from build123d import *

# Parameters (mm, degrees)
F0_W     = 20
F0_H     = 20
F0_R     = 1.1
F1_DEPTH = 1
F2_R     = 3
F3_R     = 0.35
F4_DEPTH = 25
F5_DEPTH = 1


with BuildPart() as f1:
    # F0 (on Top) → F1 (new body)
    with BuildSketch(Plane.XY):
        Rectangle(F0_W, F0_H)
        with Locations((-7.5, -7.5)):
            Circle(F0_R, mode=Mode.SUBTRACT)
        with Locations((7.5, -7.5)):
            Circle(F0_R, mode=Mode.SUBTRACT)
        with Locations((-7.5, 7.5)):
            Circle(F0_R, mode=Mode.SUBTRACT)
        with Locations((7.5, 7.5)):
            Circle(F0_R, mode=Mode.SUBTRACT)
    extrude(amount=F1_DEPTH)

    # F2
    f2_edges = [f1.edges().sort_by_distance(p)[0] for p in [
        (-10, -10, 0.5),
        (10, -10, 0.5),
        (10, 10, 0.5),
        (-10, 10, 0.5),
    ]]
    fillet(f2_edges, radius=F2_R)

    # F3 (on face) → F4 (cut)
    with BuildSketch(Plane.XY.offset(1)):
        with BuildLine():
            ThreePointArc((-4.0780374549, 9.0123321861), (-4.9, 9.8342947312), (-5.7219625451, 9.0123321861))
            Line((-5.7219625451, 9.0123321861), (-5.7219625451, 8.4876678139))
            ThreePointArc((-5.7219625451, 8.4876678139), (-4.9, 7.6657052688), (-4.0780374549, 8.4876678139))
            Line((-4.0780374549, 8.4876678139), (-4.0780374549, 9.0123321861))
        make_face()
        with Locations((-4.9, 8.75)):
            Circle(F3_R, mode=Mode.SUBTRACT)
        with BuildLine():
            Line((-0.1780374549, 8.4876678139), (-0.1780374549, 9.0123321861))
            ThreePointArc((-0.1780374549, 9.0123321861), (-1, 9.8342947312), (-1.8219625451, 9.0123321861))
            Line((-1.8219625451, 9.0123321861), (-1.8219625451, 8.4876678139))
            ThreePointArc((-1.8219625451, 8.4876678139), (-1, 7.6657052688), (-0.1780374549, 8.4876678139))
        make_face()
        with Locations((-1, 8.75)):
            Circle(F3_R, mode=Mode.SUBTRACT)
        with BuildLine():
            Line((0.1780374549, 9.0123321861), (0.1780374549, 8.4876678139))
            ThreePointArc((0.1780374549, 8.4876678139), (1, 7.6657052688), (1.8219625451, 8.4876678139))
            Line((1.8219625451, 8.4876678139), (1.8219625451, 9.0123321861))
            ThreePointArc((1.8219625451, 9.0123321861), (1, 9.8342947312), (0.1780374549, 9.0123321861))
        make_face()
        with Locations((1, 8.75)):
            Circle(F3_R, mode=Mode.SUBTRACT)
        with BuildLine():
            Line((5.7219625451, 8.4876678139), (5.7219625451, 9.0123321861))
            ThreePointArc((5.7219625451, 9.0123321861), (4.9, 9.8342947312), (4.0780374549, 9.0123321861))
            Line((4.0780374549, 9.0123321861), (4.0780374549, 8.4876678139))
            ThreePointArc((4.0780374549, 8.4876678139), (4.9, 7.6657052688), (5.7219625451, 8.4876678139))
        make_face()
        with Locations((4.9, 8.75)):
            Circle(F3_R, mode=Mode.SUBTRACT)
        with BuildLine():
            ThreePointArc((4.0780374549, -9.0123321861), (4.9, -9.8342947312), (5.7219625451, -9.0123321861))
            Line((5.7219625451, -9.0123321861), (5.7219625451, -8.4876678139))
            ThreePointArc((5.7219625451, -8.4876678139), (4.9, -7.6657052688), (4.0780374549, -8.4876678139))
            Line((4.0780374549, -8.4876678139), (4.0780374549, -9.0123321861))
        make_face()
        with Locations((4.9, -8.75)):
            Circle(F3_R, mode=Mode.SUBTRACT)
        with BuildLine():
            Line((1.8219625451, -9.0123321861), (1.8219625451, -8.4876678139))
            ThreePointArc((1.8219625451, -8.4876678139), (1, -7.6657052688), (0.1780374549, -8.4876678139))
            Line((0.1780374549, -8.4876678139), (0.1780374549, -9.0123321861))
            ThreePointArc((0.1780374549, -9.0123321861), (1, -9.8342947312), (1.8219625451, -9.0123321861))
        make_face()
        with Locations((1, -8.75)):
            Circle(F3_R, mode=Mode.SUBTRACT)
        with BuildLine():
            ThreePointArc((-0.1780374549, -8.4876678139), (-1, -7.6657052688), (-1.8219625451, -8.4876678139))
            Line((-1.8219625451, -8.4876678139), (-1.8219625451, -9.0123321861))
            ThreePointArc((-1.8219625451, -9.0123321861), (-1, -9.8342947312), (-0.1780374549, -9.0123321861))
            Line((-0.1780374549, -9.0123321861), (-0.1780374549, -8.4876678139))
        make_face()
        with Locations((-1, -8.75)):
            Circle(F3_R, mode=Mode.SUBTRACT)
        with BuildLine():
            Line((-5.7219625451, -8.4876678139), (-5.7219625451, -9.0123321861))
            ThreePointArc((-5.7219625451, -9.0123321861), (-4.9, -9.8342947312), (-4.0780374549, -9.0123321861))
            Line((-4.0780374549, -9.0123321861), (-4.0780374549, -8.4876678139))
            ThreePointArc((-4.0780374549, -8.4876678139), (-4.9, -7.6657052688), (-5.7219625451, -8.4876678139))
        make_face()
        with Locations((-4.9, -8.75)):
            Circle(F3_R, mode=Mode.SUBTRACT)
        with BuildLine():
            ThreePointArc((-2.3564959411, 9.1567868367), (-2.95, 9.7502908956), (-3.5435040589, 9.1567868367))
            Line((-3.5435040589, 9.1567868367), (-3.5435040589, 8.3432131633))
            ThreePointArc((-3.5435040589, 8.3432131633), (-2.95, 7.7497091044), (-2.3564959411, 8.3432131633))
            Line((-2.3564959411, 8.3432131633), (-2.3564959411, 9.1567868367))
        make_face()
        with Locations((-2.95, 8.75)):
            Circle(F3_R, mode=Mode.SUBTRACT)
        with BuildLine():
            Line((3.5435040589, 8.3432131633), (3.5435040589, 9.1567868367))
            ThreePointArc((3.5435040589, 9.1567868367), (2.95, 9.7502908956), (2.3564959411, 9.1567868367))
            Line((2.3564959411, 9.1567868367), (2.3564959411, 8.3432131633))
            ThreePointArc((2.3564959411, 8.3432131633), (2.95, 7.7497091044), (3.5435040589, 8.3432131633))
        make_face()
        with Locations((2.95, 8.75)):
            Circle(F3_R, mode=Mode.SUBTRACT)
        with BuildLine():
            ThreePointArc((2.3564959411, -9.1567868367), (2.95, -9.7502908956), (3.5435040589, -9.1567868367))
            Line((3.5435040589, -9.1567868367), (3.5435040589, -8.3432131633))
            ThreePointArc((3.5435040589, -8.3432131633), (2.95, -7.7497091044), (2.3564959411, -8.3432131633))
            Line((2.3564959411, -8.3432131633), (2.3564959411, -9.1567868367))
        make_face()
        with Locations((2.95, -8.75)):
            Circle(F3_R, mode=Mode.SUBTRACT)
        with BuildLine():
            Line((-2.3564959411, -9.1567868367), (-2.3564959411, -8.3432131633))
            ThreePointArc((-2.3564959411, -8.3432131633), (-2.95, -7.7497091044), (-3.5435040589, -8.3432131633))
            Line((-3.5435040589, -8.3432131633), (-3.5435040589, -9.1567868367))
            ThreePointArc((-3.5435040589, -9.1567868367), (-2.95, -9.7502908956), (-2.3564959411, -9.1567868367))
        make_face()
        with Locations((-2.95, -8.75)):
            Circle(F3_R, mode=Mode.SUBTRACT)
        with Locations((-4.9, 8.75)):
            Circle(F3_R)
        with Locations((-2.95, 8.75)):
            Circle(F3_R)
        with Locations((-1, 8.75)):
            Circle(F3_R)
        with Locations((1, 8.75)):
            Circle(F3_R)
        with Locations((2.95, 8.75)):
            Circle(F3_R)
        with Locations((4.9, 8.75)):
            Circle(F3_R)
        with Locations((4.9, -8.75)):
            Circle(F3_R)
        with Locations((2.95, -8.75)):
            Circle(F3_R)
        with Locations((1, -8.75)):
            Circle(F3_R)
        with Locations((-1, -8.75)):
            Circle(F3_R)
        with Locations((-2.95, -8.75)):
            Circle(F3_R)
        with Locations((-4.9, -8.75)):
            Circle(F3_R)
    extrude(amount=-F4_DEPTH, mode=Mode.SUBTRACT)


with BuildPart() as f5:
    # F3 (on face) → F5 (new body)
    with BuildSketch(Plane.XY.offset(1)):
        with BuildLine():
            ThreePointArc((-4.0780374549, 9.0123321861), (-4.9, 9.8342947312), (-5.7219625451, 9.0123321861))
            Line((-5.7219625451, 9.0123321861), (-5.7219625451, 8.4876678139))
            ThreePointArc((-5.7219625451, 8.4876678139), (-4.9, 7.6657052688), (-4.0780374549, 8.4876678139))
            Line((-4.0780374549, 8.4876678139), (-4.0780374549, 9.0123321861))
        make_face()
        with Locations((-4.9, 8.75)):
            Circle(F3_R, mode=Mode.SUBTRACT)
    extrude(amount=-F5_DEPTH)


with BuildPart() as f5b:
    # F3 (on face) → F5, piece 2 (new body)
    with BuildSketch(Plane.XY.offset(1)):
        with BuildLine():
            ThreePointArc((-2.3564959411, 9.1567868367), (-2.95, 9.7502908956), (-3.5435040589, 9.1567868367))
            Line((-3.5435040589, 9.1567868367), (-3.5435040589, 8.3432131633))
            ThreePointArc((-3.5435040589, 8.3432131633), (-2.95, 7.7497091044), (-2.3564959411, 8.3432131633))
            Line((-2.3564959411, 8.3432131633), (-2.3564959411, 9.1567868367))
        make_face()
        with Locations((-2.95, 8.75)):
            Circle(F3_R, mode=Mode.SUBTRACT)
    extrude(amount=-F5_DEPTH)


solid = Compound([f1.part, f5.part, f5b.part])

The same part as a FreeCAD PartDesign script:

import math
import FreeCAD as App
import Part
import Sketcher
Q = App.Units.Quantity


def edges_at(feature, points):
    """Names of the edges that pass closest to the given points."""
    edges = feature.Shape.Edges
    near = lambda p: min(range(len(edges)), key=lambda i: edges[i].distToShape(Part.Vertex(*p))[0])
    return sorted({f"Edge{near(p) + 1}" for p in points})

doc = App.newDocument("Part")
body = doc.addObject("PartDesign::Body", "Body")

# Sketch on XY plane
sketch1 = body.newObject("Sketcher::SketchObject", "Sketch")
sketch1.AttachmentSupport = (doc.getObject("XY_Plane"), [""])
sketch1.MapMode = "FlatFace"
sketch1.addGeometry([
    Part.LineSegment(App.Vector(-10, 10, 0), App.Vector(-10, -10, 0)),  # 0
    Part.LineSegment(App.Vector(-10, -10, 0), App.Vector(10, -10, 0)),  # 1
    Part.LineSegment(App.Vector(10, -10, 0), App.Vector(10, 10, 0)),  # 2
    Part.LineSegment(App.Vector(10, 10, 0), App.Vector(-10, 10, 0)),  # 3
    Part.Circle(App.Vector(-7.5, -7.5, 0), App.Vector(0, 0, 1), 1.1),  # 4
    Part.Circle(App.Vector(7.5, -7.5, 0), App.Vector(0, 0, 1), 1.1),  # 5
    Part.Circle(App.Vector(-7.5, 7.5, 0), App.Vector(0, 0, 1), 1.1),  # 6
    Part.Circle(App.Vector(7.5, 7.5, 0), App.Vector(0, 0, 1), 1.1),  # 7
], False)
sketch1.addConstraint([
    Sketcher.Constraint("Coincident", 0, 2, 1, 1),
    Sketcher.Constraint("Coincident", 1, 2, 2, 1),
    Sketcher.Constraint("Coincident", 2, 2, 3, 1),
    Sketcher.Constraint("Coincident", 3, 2, 0, 1),
    Sketcher.Constraint("Vertical", 0),
    Sketcher.Constraint("Horizontal", 1),
    Sketcher.Constraint("Vertical", 2),
    Sketcher.Constraint("Horizontal", 3),
    Sketcher.Constraint("Equal", 4, 5),
    Sketcher.Constraint("Equal", 5, 6),
    Sketcher.Constraint("Equal", 6, 7),
    Sketcher.Constraint("Symmetric", 5, 3, 6, 3, -1, 1),
    Sketcher.Constraint("Symmetric", 4, 3, 7, 3, -1, 1),
    Sketcher.Constraint("Symmetric", 0, 2, 2, 2, -1, 1),
    Sketcher.Constraint("Symmetric", 4, 3, 5, 3, -2),
    Sketcher.Constraint("Equal", 3, 0),
    Sketcher.Constraint("Diameter", 4, Q("2.2 mm")),
    Sketcher.Constraint("DistanceX", 1, 1, 1, 2, Q("20 mm")),
    Sketcher.Constraint("DistanceX", 4, 3, 5, 3, Q("15 mm")),
    Sketcher.Constraint("DistanceY", 4, 3, 6, 3, Q("15 mm")),
])
pad1 = body.newObject("PartDesign::Pad", "Pad")
pad1.Profile = sketch1
pad1.Length = 1
doc.recompute()

fillet = body.newObject("PartDesign::Fillet", "Fillet")
fillet.Base = (pad1, edges_at(pad1, [
    (-10, -10, 0.5),
    (10, -10, 0.5),
    (10, 10, 0.5),
    (-10, 10, 0.5),
]))
fillet.Radius = 3

# Sketch on XY plane
sketch2 = body.newObject("Sketcher::SketchObject", "Sketch001")
sketch2.AttachmentSupport = (doc.getObject("XY_Plane"), [""])
sketch2.MapMode = "FlatFace"
sketch2.AttachmentOffset = App.Placement(App.Vector(0, 0, 1), App.Rotation())
sketch2.addGeometry([
    Part.ArcOfCircle(Part.Circle(App.Vector(-4.9, 9, 0), App.Vector(0, 0, 1), 0.8), math.radians(0), math.radians(180)),  # 0
    Part.LineSegment(App.Vector(-5.7, 9, 0), App.Vector(-5.7, 8.5, 0)),  # 1
    Part.ArcOfCircle(Part.Circle(App.Vector(-4.9, 8.5, 0), App.Vector(0, 0, 1), 0.8), math.radians(180), math.radians(360)),  # 2
    Part.LineSegment(App.Vector(-4.1, 8.5, 0), App.Vector(-4.1, 9, 0)),  # 3
    Part.LineSegment(App.Vector(-0.2, 8.5, 0), App.Vector(-0.2, 9, 0)),  # 4
    Part.ArcOfCircle(Part.Circle(App.Vector(-1, 9, 0), App.Vector(0, 0, 1), 0.8), math.radians(0), math.radians(180)),  # 5
    Part.LineSegment(App.Vector(-1.8, 9, 0), App.Vector(-1.8, 8.5, 0)),  # 6
    Part.ArcOfCircle(Part.Circle(App.Vector(-1, 8.5, 0), App.Vector(0, 0, 1), 0.8), math.radians(180), math.radians(360)),  # 7
    Part.LineSegment(App.Vector(0.2, 9, 0), App.Vector(0.2, 8.5, 0)),  # 8
    Part.ArcOfCircle(Part.Circle(App.Vector(1, 8.5, 0), App.Vector(0, 0, 1), 0.8), math.radians(180), math.radians(360)),  # 9
    Part.LineSegment(App.Vector(1.8, 8.5, 0), App.Vector(1.8, 9, 0)),  # 10
    Part.ArcOfCircle(Part.Circle(App.Vector(1, 9, 0), App.Vector(0, 0, 1), 0.8), math.radians(0), math.radians(180)),  # 11
    Part.LineSegment(App.Vector(5.7, 8.5, 0), App.Vector(5.7, 9, 0)),  # 12
    Part.ArcOfCircle(Part.Circle(App.Vector(4.9, 9, 0), App.Vector(0, 0, 1), 0.8), math.radians(0), math.radians(180)),  # 13
    Part.LineSegment(App.Vector(4.1, 9, 0), App.Vector(4.1, 8.5, 0)),  # 14
    Part.ArcOfCircle(Part.Circle(App.Vector(4.9, 8.5, 0), App.Vector(0, 0, 1), 0.8), math.radians(180), math.radians(360)),  # 15
    Part.ArcOfCircle(Part.Circle(App.Vector(4.9, -9, 0), App.Vector(0, 0, 1), 0.8), math.radians(180), math.radians(360)),  # 16
    Part.LineSegment(App.Vector(5.7, -9, 0), App.Vector(5.7, -8.5, 0)),  # 17
    Part.ArcOfCircle(Part.Circle(App.Vector(4.9, -8.5, 0), App.Vector(0, 0, 1), 0.8), math.radians(0), math.radians(180)),  # 18
    Part.LineSegment(App.Vector(4.1, -8.5, 0), App.Vector(4.1, -9, 0)),  # 19
    Part.LineSegment(App.Vector(1.8, -9, 0), App.Vector(1.8, -8.5, 0)),  # 20
    Part.ArcOfCircle(Part.Circle(App.Vector(1, -8.5, 0), App.Vector(0, 0, 1), 0.8), math.radians(0), math.radians(180)),  # 21
    Part.LineSegment(App.Vector(0.2, -8.5, 0), App.Vector(0.2, -9, 0)),  # 22
    Part.ArcOfCircle(Part.Circle(App.Vector(1, -9, 0), App.Vector(0, 0, 1), 0.8), math.radians(180), math.radians(360)),  # 23
    Part.ArcOfCircle(Part.Circle(App.Vector(-1, -8.5, 0), App.Vector(0, 0, 1), 0.8), math.radians(0), math.radians(180)),  # 24
    Part.LineSegment(App.Vector(-1.8, -8.5, 0), App.Vector(-1.8, -9, 0)),  # 25
    Part.ArcOfCircle(Part.Circle(App.Vector(-1, -9, 0), App.Vector(0, 0, 1), 0.8), math.radians(180), math.radians(360)),  # 26
    Part.LineSegment(App.Vector(-0.2, -9, 0), App.Vector(-0.2, -8.5, 0)),  # 27
    Part.LineSegment(App.Vector(-5.7, -8.5, 0), App.Vector(-5.7, -9, 0)),  # 28
    Part.ArcOfCircle(Part.Circle(App.Vector(-4.9, -9, 0), App.Vector(0, 0, 1), 0.8), math.radians(180), math.radians(360)),  # 29
    Part.LineSegment(App.Vector(-4.1, -9, 0), App.Vector(-4.1, -8.5, 0)),  # 30
    Part.ArcOfCircle(Part.Circle(App.Vector(-4.9, -8.5, 0), App.Vector(0, 0, 1), 0.8), math.radians(0), math.radians(180)),  # 31
    Part.ArcOfCircle(Part.Circle(App.Vector(-3, 9.2, 0), App.Vector(0, 0, 1), 0.6), math.radians(0), math.radians(180)),  # 32
    Part.LineSegment(App.Vector(-3.5, 9.2, 0), App.Vector(-3.5, 8.3, 0)),  # 33
    Part.ArcOfCircle(Part.Circle(App.Vector(-3, 8.3, 0), App.Vector(0, 0, 1), 0.6), math.radians(180), math.radians(360)),  # 34
    Part.LineSegment(App.Vector(-2.4, 8.3, 0), App.Vector(-2.4, 9.2, 0)),  # 35
    Part.LineSegment(App.Vector(3.5, 8.3, 0), App.Vector(3.5, 9.2, 0)),  # 36
    Part.ArcOfCircle(Part.Circle(App.Vector(3, 9.2, 0), App.Vector(0, 0, 1), 0.6), math.radians(0), math.radians(180)),  # 37
    Part.LineSegment(App.Vector(2.4, 9.2, 0), App.Vector(2.4, 8.3, 0)),  # 38
    Part.ArcOfCircle(Part.Circle(App.Vector(3, 8.3, 0), App.Vector(0, 0, 1), 0.6), math.radians(180), math.radians(360)),  # 39
    Part.ArcOfCircle(Part.Circle(App.Vector(3, -9.2, 0), App.Vector(0, 0, 1), 0.6), math.radians(180), math.radians(360)),  # 40
    Part.LineSegment(App.Vector(3.5, -9.2, 0), App.Vector(3.5, -8.3, 0)),  # 41
    Part.ArcOfCircle(Part.Circle(App.Vector(3, -8.3, 0), App.Vector(0, 0, 1), 0.6), math.radians(0), math.radians(180)),  # 42
    Part.LineSegment(App.Vector(2.4, -8.3, 0), App.Vector(2.4, -9.2, 0)),  # 43
    Part.LineSegment(App.Vector(-2.4, -9.2, 0), App.Vector(-2.4, -8.3, 0)),  # 44
    Part.ArcOfCircle(Part.Circle(App.Vector(-3, -8.3, 0), App.Vector(0, 0, 1), 0.6), math.radians(0), math.radians(180)),  # 45
    Part.LineSegment(App.Vector(-3.5, -8.3, 0), App.Vector(-3.5, -9.2, 0)),  # 46
    Part.ArcOfCircle(Part.Circle(App.Vector(-3, -9.2, 0), App.Vector(0, 0, 1), 0.6), math.radians(180), math.radians(360)),  # 47
], False)
sketch2.addConstraint([
    Sketcher.Constraint("Tangent", 0, 2, 1, 1),
    Sketcher.Constraint("Tangent", 1, 2, 2, 1),
    Sketcher.Constraint("Tangent", 2, 2, 3, 1),
    Sketcher.Constraint("Tangent", 3, 2, 0, 1),
    Sketcher.Constraint("Tangent", 4, 2, 5, 1),
    Sketcher.Constraint("Tangent", 5, 2, 6, 1),
    Sketcher.Constraint("Tangent", 6, 2, 7, 1),
    Sketcher.Constraint("Tangent", 7, 2, 4, 1),
    Sketcher.Constraint("Tangent", 8, 2, 9, 1),
    Sketcher.Constraint("Tangent", 9, 2, 10, 1),
    Sketcher.Constraint("Tangent", 10, 2, 11, 1),
    Sketcher.Constraint("Tangent", 11, 2, 8, 1),
    Sketcher.Constraint("Tangent", 12, 2, 13, 1),
    Sketcher.Constraint("Tangent", 13, 2, 14, 1),
    Sketcher.Constraint("Tangent", 14, 2, 15, 1),
    Sketcher.Constraint("Tangent", 15, 2, 12, 1),
    Sketcher.Constraint("Tangent", 16, 2, 17, 1),
    Sketcher.Constraint("Tangent", 17, 2, 18, 1),
    Sketcher.Constraint("Tangent", 18, 2, 19, 1),
    Sketcher.Constraint("Tangent", 19, 2, 16, 1),
    Sketcher.Constraint("Tangent", 20, 2, 21, 1),
    Sketcher.Constraint("Tangent", 21, 2, 22, 1),
    Sketcher.Constraint("Tangent", 22, 2, 23, 1),
    Sketcher.Constraint("Tangent", 23, 2, 20, 1),
    Sketcher.Constraint("Tangent", 24, 2, 25, 1),
    Sketcher.Constraint("Tangent", 25, 2, 26, 1),
    Sketcher.Constraint("Tangent", 26, 2, 27, 1),
    Sketcher.Constraint("Tangent", 27, 2, 24, 1),
    Sketcher.Constraint("Tangent", 28, 2, 29, 1),
    Sketcher.Constraint("Tangent", 29, 2, 30, 1),
    Sketcher.Constraint("Tangent", 30, 2, 31, 1),
    Sketcher.Constraint("Tangent", 31, 2, 28, 1),
    Sketcher.Constraint("Tangent", 32, 2, 33, 1),
    Sketcher.Constraint("Tangent", 33, 2, 34, 1),
    Sketcher.Constraint("Tangent", 34, 2, 35, 1),
    Sketcher.Constraint("Tangent", 35, 2, 32, 1),
    Sketcher.Constraint("Tangent", 36, 2, 37, 1),
    Sketcher.Constraint("Tangent", 37, 2, 38, 1),
    Sketcher.Constraint("Tangent", 38, 2, 39, 1),
    Sketcher.Constraint("Tangent", 39, 2, 36, 1),
    Sketcher.Constraint("Tangent", 40, 2, 41, 1),
    Sketcher.Constraint("Tangent", 41, 2, 42, 1),
    Sketcher.Constraint("Tangent", 42, 2, 43, 1),
    Sketcher.Constraint("Tangent", 43, 2, 40, 1),
    Sketcher.Constraint("Tangent", 44, 2, 45, 1),
    Sketcher.Constraint("Tangent", 45, 2, 46, 1),
    Sketcher.Constraint("Tangent", 46, 2, 47, 1),
    Sketcher.Constraint("Tangent", 47, 2, 44, 1),
    Sketcher.Constraint("Vertical", 1),
    Sketcher.Constraint("Vertical", 3),
    Sketcher.Constraint("Vertical", 4),
    Sketcher.Constraint("Vertical", 6),
    Sketcher.Constraint("Vertical", 8),
    Sketcher.Constraint("Vertical", 10),
    Sketcher.Constraint("Vertical", 12),
    Sketcher.Constraint("Vertical", 14),
    Sketcher.Constraint("Vertical", 17),
    Sketcher.Constraint("Vertical", 19),
    Sketcher.Constraint("Vertical", 20),
    Sketcher.Constraint("Vertical", 22),
    Sketcher.Constraint("Vertical", 25),
    Sketcher.Constraint("Vertical", 27),
    Sketcher.Constraint("Vertical", 28),
    Sketcher.Constraint("Vertical", 30),
    Sketcher.Constraint("Vertical", 33),
    Sketcher.Constraint("Vertical", 35),
    Sketcher.Constraint("Vertical", 36),
    Sketcher.Constraint("Vertical", 38),
    Sketcher.Constraint("Vertical", 41),
    Sketcher.Constraint("Vertical", 43),
    Sketcher.Constraint("Vertical", 44),
    Sketcher.Constraint("Vertical", 46),
    Sketcher.Constraint("Equal", 2, 5),
    Sketcher.Constraint("Equal", 7, 9),
    Sketcher.Constraint("Equal", 11, 13),
    Sketcher.Constraint("Equal", 15, 16),
    Sketcher.Constraint("Equal", 18, 21),
    Sketcher.Constraint("Equal", 23, 24),
    Sketcher.Constraint("Equal", 26, 29),
    Sketcher.Constraint("Equal", 34, 37),
    Sketcher.Constraint("Equal", 39, 40),
    Sketcher.Constraint("Equal", 42, 45),
    Sketcher.Constraint("Symmetric", 0, 3, 16, 3, -1, 1),
    Sketcher.Constraint("Symmetric", 7, 3, 21, 3, -1, 1),
    Sketcher.Constraint("Symmetric", 9, 3, 24, 3, -1, 1),
    Sketcher.Constraint("Symmetric", 13, 3, 29, 3, -1, 1),
    Sketcher.Constraint("Symmetric", 32, 3, 40, 3, -1, 1),
    Sketcher.Constraint("Symmetric", 39, 3, 45, 3, -1, 1),
    Sketcher.Constraint("Symmetric", 7, 3, 9, 3, -2),
    Sketcher.Constraint("Symmetric", 0, 3, 13, 3, -2),
    Sketcher.Constraint("Symmetric", 32, 3, 37, 3, -2),
    Sketcher.Constraint("Horizontal", 0, 3, 5, 3),
    Sketcher.Constraint("Horizontal", 2, 3, 7, 3),
    Sketcher.Constraint("Horizontal", 5, 3, 11, 3),
    Sketcher.Constraint("Horizontal", 9, 3, 15, 3),
    Sketcher.Constraint("Horizontal", 18, 3, 21, 3),
    Sketcher.Constraint("Horizontal", 16, 3, 23, 3),
    Sketcher.Constraint("Horizontal", 23, 3, 26, 3),
    Sketcher.Constraint("Horizontal", 24, 3, 31, 3),
    Sketcher.Constraint("Horizontal", 34, 3, 39, 3),
    Sketcher.Constraint("Horizontal", 42, 3, 45, 3),
    Sketcher.Constraint("Horizontal", 40, 3, 47, 3),
    Sketcher.Constraint("DistanceX", 5, 3, -1, 1, Q("1 mm")),
    Sketcher.Constraint("DistanceX", 0, 3, -1, 1, Q("4.9 mm")),
    Sketcher.Constraint("DistanceX", 32, 3, -1, 1, Q("2.95 mm")),
    Sketcher.Constraint("Radius", 0, Q("0.821963 mm")),
    Sketcher.Constraint("Radius", 32, Q("0.593504 mm")),
    Sketcher.Constraint("DistanceY", 1, 2, 1, 1, Q("0.524664 mm")),
    Sketcher.Constraint("DistanceY", 33, 2, 33, 1, Q("0.813574 mm")),
    Sketcher.Constraint("DistanceY", -1, 1, 0, 3, Q("9.012332 mm")),
    Sketcher.Constraint("DistanceY", -1, 1, 32, 3, Q("9.156787 mm")),
])
pocket1 = body.newObject("PartDesign::Pocket", "Pocket")
pocket1.Profile = sketch2
pocket1.Length = 25
body2 = doc.addObject("PartDesign::Body", "Body001")

# Sketch on XY plane
sketch3 = body2.newObject("Sketcher::SketchObject", "Sketch002")
sketch3.AttachmentSupport = (doc.getObject("XY_Plane001"), [""])
sketch3.MapMode = "FlatFace"
sketch3.AttachmentOffset = App.Placement(App.Vector(0, 0, 1), App.Rotation())
sketch3.addGeometry([
    Part.ArcOfCircle(Part.Circle(App.Vector(-4.9, 9.01, 0), App.Vector(0, 0, 1), 0.82), math.radians(0), math.radians(180)),  # 0
    Part.LineSegment(App.Vector(-5.72, 9.01, 0), App.Vector(-5.72, 8.49, 0)),  # 1
    Part.ArcOfCircle(Part.Circle(App.Vector(-4.9, 8.49, 0), App.Vector(0, 0, 1), 0.82), math.radians(180), math.radians(360)),  # 2
    Part.LineSegment(App.Vector(-4.08, 8.49, 0), App.Vector(-4.08, 9.01, 0)),  # 3
    Part.Circle(App.Vector(-4.9, 8.75, 0), App.Vector(0, 0, 1), 0.35),  # 4
], False)
sketch3.addConstraint([
    Sketcher.Constraint("Tangent", 0, 2, 1, 1),
    Sketcher.Constraint("Tangent", 1, 2, 2, 1),
    Sketcher.Constraint("Tangent", 2, 2, 3, 1),
    Sketcher.Constraint("Tangent", 3, 2, 0, 1),
    Sketcher.Constraint("Vertical", 1),
    Sketcher.Constraint("Vertical", 3),
    Sketcher.Constraint("Vertical", 2, 3, 4, 3),
    Sketcher.Constraint("Diameter", 4, Q("0.7 mm")),
    Sketcher.Constraint("DistanceX", 0, 3, -1, 1, Q("4.9 mm")),
    Sketcher.Constraint("DistanceY", -1, 1, 4, 3, Q("8.75 mm")),
    Sketcher.Constraint("Radius", 0, Q("0.821963 mm")),
    Sketcher.Constraint("DistanceY", 1, 2, 1, 1, Q("0.524664 mm")),
    Sketcher.Constraint("DistanceY", -1, 1, 0, 3, Q("9.012332 mm")),
])
pad2 = body2.newObject("PartDesign::Pad", "Pad001")
pad2.Profile = sketch3
pad2.Length = 1
pad2.Reversed = True
body3 = doc.addObject("PartDesign::Body", "Body002")

# Sketch on XY plane
sketch4 = body3.newObject("Sketcher::SketchObject", "Sketch003")
sketch4.AttachmentSupport = (doc.getObject("XY_Plane002"), [""])
sketch4.MapMode = "FlatFace"
sketch4.AttachmentOffset = App.Placement(App.Vector(0, 0, 1), App.Rotation())
sketch4.addGeometry([
    Part.ArcOfCircle(Part.Circle(App.Vector(-2.95, 9.16, 0), App.Vector(0, 0, 1), 0.59), math.radians(0), math.radians(180)),  # 0
    Part.LineSegment(App.Vector(-3.54, 9.16, 0), App.Vector(-3.54, 8.34, 0)),  # 1
    Part.ArcOfCircle(Part.Circle(App.Vector(-2.95, 8.34, 0), App.Vector(0, 0, 1), 0.59), math.radians(180), math.radians(360)),  # 2
    Part.LineSegment(App.Vector(-2.36, 8.34, 0), App.Vector(-2.36, 9.16, 0)),  # 3
    Part.Circle(App.Vector(-2.95, 8.75, 0), App.Vector(0, 0, 1), 0.35),  # 4
], False)
sketch4.addConstraint([
    Sketcher.Constraint("Tangent", 0, 2, 1, 1),
    Sketcher.Constraint("Tangent", 1, 2, 2, 1),
    Sketcher.Constraint("Tangent", 2, 2, 3, 1),
    Sketcher.Constraint("Tangent", 3, 2, 0, 1),
    Sketcher.Constraint("Vertical", 1),
    Sketcher.Constraint("Vertical", 3),
    Sketcher.Constraint("Vertical", 2, 3, 4, 3),
    Sketcher.Constraint("Diameter", 4, Q("0.7 mm")),
    Sketcher.Constraint("DistanceX", 0, 3, -1, 1, Q("2.95 mm")),
    Sketcher.Constraint("DistanceY", -1, 1, 4, 3, Q("8.75 mm")),
    Sketcher.Constraint("Radius", 0, Q("0.593504 mm")),
    Sketcher.Constraint("DistanceY", 1, 2, 1, 1, Q("0.813574 mm")),
    Sketcher.Constraint("DistanceY", -1, 1, 0, 3, Q("9.156787 mm")),
])
pad3 = body3.newObject("PartDesign::Pad", "Pad002")
pad3.Profile = sketch4
pad3.Length = 1
pad3.Reversed = True

doc.recompute()
